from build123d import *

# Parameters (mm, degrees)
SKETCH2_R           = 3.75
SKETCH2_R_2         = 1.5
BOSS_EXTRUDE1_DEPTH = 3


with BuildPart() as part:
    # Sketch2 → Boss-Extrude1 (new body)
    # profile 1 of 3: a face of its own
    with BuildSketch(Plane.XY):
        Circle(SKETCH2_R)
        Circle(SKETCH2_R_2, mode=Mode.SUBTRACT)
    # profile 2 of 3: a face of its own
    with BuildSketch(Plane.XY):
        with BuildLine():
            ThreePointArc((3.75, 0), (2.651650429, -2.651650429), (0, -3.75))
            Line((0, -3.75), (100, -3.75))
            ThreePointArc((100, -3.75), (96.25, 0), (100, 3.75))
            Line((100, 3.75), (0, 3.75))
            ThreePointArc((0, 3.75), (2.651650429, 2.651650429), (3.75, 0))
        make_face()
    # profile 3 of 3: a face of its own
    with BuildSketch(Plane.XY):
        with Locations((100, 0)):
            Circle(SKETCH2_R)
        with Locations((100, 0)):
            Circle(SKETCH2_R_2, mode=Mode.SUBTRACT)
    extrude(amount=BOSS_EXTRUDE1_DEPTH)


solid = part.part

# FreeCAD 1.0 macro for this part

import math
import FreeCAD as App
import Part
import Sketcher
from FreeCAD import Vector

doc = App.newDocument("Part")
body = doc.addObject("PartDesign::Body", "Body")

sketch1 = body.newObject("Sketcher::SketchObject", "Sketch")
sketch1.AttachmentSupport = (doc.getObject("XY_Plane"), [""])
sketch1.MapMode = "FlatFace"
sketch1.addGeometry(Part.ArcOfCircle(Part.Circle(Vector(0, 0, 0), Vector(0, 0, 1), 3.8), math.radians(90), math.radians(270)), False)
sketch1.addGeometry(Part.LineSegment(Vector(0, -3.8, 0), Vector(100, -3.8, 0)), False)
sketch1.addGeometry(Part.ArcOfCircle(Part.Circle(Vector(100, 0, 0), Vector(0, 0, 1), 3.8), math.radians(-90), math.radians(90)), False)
sketch1.addGeometry(Part.LineSegment(Vector(100, 3.8, 0), Vector(0, 3.8, 0)), False)
sketch1.addGeometry(Part.Circle(Vector(0, 0, 0), Vector(0, 0, 1), 1.5), False)
sketch1.addGeometry(Part.Circle(Vector(100, 0, 0), Vector(0, 0, 1), 1.5), False)
sketch1.addConstraint(Sketcher.Constraint("Tangent", 0, 2, 1, 1))
sketch1.addConstraint(Sketcher.Constraint("Tangent", 1, 2, 2, 1))
sketch1.addConstraint(Sketcher.Constraint("Tangent", 2, 2, 3, 1))
sketch1.addConstraint(Sketcher.Constraint("Tangent", 3, 2, 0, 1))
sketch1.addConstraint(Sketcher.Constraint("Horizontal", 1))
sketch1.addConstraint(Sketcher.Constraint("Horizontal", 3))
sketch1.addConstraint(Sketcher.Constraint("Coincident", 0, 3, -1, 1))
sketch1.addConstraint(Sketcher.Constraint("Coincident", 4, 3, -1, 1))
sketch1.addConstraint(Sketcher.Constraint("Coincident", 5, 3, 2, 3))
sketch1.addConstraint(Sketcher.Constraint("Equal", 4, 5))
sketch1.addConstraint(Sketcher.Constraint("Diameter", 4, 3.0))
sketch1.addConstraint(Sketcher.Constraint("DistanceX", 1, 1, 1, 2, 100.0))
sketch1.addConstraint(Sketcher.Constraint("Radius", 0, 3.75))
pad1 = body.newObject("PartDesign::Pad", "Pad")
pad1.Profile = sketch1
pad1.Length = 3

doc.recompute()
